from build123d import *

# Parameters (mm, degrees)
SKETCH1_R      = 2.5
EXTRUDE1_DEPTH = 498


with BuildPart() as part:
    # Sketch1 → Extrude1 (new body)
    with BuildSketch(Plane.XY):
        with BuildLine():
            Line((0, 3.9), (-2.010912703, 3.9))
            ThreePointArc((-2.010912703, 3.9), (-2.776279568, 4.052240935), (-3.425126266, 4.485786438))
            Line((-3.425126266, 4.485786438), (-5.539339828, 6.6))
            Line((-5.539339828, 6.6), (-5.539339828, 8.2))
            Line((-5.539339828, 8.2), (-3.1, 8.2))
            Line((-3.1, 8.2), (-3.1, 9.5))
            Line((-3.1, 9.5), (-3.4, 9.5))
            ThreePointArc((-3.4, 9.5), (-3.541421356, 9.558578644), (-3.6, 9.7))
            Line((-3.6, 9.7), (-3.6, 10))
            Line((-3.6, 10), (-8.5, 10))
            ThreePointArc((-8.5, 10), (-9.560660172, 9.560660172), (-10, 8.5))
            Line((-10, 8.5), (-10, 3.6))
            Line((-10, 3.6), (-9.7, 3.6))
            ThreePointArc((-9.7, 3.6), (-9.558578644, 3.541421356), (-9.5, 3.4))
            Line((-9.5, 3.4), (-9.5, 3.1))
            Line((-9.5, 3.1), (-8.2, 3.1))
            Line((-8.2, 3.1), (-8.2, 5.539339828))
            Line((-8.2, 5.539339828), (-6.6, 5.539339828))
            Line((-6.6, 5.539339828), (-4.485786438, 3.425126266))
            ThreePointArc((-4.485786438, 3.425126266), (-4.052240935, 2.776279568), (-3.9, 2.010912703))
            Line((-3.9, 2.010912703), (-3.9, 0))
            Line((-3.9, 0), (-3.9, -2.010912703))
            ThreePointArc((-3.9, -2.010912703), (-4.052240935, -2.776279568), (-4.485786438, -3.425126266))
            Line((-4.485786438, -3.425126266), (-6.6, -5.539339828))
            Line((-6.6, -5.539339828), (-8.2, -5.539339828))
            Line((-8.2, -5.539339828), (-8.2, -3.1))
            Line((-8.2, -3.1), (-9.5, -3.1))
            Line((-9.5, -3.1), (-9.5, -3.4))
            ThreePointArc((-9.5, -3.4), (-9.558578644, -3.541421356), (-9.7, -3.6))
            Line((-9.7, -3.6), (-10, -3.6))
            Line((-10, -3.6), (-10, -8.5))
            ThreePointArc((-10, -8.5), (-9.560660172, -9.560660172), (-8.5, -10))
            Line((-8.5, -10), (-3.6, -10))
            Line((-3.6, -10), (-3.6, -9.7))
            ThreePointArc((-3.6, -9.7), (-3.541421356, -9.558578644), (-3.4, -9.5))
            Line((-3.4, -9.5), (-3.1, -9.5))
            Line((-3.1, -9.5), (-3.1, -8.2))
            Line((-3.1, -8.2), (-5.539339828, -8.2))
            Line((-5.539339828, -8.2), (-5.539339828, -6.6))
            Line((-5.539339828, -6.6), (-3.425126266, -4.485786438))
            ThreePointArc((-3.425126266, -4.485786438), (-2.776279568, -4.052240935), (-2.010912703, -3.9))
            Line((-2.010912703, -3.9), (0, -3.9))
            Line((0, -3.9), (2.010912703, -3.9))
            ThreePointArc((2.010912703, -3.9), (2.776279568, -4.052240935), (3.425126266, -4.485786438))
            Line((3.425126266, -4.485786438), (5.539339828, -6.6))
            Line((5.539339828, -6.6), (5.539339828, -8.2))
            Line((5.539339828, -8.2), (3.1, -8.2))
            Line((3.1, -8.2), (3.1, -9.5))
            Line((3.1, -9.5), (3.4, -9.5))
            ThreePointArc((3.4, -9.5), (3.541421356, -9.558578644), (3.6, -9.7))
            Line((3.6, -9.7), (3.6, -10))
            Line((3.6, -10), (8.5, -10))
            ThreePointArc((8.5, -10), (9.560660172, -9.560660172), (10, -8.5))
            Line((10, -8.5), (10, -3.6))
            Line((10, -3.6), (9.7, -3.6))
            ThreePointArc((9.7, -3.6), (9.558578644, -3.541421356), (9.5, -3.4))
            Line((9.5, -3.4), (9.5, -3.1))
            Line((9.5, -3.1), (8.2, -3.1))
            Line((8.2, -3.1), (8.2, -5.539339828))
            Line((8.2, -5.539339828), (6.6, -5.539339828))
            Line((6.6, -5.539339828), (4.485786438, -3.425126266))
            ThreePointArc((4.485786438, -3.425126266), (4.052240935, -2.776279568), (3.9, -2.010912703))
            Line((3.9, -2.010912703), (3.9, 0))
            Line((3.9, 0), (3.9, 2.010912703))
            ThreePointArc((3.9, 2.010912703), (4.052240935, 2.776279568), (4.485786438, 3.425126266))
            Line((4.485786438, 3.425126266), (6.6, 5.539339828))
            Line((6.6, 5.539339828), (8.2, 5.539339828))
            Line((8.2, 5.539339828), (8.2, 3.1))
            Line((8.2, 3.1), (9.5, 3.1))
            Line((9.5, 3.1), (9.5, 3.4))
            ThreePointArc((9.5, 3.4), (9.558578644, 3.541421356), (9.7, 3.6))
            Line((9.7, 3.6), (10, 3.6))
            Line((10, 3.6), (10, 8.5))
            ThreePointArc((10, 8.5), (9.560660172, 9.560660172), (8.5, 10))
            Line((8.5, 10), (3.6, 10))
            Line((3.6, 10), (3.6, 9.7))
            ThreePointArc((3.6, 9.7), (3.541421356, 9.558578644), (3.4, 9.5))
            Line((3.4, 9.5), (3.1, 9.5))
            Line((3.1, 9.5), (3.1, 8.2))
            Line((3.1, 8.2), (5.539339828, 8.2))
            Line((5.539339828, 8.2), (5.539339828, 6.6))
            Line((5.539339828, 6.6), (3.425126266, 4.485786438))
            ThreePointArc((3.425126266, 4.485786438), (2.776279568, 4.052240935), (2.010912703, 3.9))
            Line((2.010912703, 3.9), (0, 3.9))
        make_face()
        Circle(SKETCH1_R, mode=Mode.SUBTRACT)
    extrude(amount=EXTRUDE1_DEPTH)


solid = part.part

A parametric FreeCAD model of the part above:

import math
import FreeCAD as App
import Part
import Sketcher
Q = App.Units.Quantity

doc = App.newDocument("Part")
body = doc.addObject("PartDesign::Body", "Body")

# Sketch on XY plane
sketch1 = doc.addObject("Sketcher::SketchObject", "Sketch")
body.addObject(sketch1)
sketch1.AttachmentSupport = (doc.XY_Plane, [""])
sketch1.MapMode = "FlatFace"
sketch1.addGeometry([
    Part.ArcOfCircle(Part.Circle(App.Vector(-2.01, 5.9, 0), App.Vector(0, 0, 1), 2), math.radians(-135), math.radians(-90)),  # 0
    Part.LineSegment(App.Vector(-3.43, 4.49, 0), App.Vector(-5.54, 6.6, 0)),  # 1
    Part.LineSegment(App.Vector(-5.54, 6.6, 0), App.Vector(-5.54, 8.2, 0)),  # 2
    Part.LineSegment(App.Vector(-5.54, 8.2, 0), App.Vector(-3.1, 8.2, 0)),  # 3
    Part.LineSegment(App.Vector(-3.1, 8.2, 0), App.Vector(-3.1, 9.5, 0)),  # 4
    Part.LineSegment(App.Vector(-3.1, 9.5, 0), App.Vector(-3.4, 9.5, 0)),  # 5
    Part.ArcOfCircle(Part.Circle(App.Vector(-3.4, 9.7, 0), App.Vector(0, 0, 1), 0.2), math.radians(-180), math.radians(-90)),  # 6
    Part.LineSegment(App.Vector(-3.6, 9.7, 0), App.Vector(-3.6, 10, 0)),  # 7
    Part.LineSegment(App.Vector(-3.6, 10, 0), App.Vector(-8.5, 10, 0)),  # 8
    Part.ArcOfCircle(Part.Circle(App.Vector(-8.5, 8.5, 0), App.Vector(0, 0, 1), 1.5), math.radians(90), math.radians(180)),  # 9
    Part.LineSegment(App.Vector(-10, 8.5, 0), App.Vector(-10, 3.6, 0)),  # 10
    Part.LineSegment(App.Vector(-10, 3.6, 0), App.Vector(-9.7, 3.6, 0)),  # 11
    Part.ArcOfCircle(Part.Circle(App.Vector(-9.7, 3.4, 0), App.Vector(0, 0, 1), 0.2), math.radians(0), math.radians(90)),  # 12
    Part.LineSegment(App.Vector(-9.5, 3.4, 0), App.Vector(-9.5, 3.1, 0)),  # 13
    Part.LineSegment(App.Vector(-9.5, 3.1, 0), App.Vector(-8.2, 3.1, 0)),  # 14
    Part.LineSegment(App.Vector(-8.2, 3.1, 0), App.Vector(-8.2, 5.54, 0)),  # 15
    Part.LineSegment(App.Vector(-8.2, 5.54, 0), App.Vector(-6.6, 5.54, 0)),  # 16
    Part.LineSegment(App.Vector(-6.6, 5.54, 0), App.Vector(-4.49, 3.43, 0)),  # 17
    Part.ArcOfCircle(Part.Circle(App.Vector(-5.9, 2.01, 0), App.Vector(0, 0, 1), 2), math.radians(0), math.radians(45)),  # 18
    Part.LineSegment(App.Vector(-3.9, 2.01, 0), App.Vector(-3.9, -2.01, 0)),  # 19
    Part.ArcOfCircle(Part.Circle(App.Vector(-5.9, -2.01, 0), App.Vector(0, 0, 1), 2), math.radians(-45), math.radians(0)),  # 20
    Part.LineSegment(App.Vector(-4.49, -3.43, 0), App.Vector(-6.6, -5.54, 0)),  # 21
    Part.LineSegment(App.Vector(-6.6, -5.54, 0), App.Vector(-8.2, -5.54, 0)),  # 22
    Part.LineSegment(App.Vector(-8.2, -5.54, 0), App.Vector(-8.2, -3.1, 0)),  # 23
    Part.LineSegment(App.Vector(-8.2, -3.1, 0), App.Vector(-9.5, -3.1, 0)),  # 24
    Part.LineSegment(App.Vector(-9.5, -3.1, 0), App.Vector(-9.5, -3.4, 0)),  # 25
    Part.ArcOfCircle(Part.Circle(App.Vector(-9.7, -3.4, 0), App.Vector(0, 0, 1), 0.2), math.radians(-90), math.radians(0)),  # 26
    Part.LineSegment(App.Vector(-9.7, -3.6, 0), App.Vector(-10, -3.6, 0)),  # 27
    Part.LineSegment(App.Vector(-10, -3.6, 0), App.Vector(-10, -8.5, 0)),  # 28
    Part.ArcOfCircle(Part.Circle(App.Vector(-8.5, -8.5, 0), App.Vector(0, 0, 1), 1.5), math.radians(180), math.radians(270)),  # 29
    Part.LineSegment(App.Vector(-8.5, -10, 0), App.Vector(-3.6, -10, 0)),  # 30
    Part.LineSegment(App.Vector(-3.6, -10, 0), App.Vector(-3.6, -9.7, 0)),  # 31
    Part.ArcOfCircle(Part.Circle(App.Vector(-3.4, -9.7, 0), App.Vector(0, 0, 1), 0.2), math.radians(90), math.radians(180)),  # 32
    Part.LineSegment(App.Vector(-3.4, -9.5, 0), App.Vector(-3.1, -9.5, 0)),  # 33
    Part.LineSegment(App.Vector(-3.1, -9.5, 0), App.Vector(-3.1, -8.2, 0)),  # 34
    Part.LineSegment(App.Vector(-3.1, -8.2, 0), App.Vector(-5.54, -8.2, 0)),  # 35
    Part.LineSegment(App.Vector(-5.54, -8.2, 0), App.Vector(-5.54, -6.6, 0)),  # 36
    Part.LineSegment(App.Vector(-5.54, -6.6, 0), App.Vector(-3.43, -4.49, 0)),  # 37
    Part.ArcOfCircle(Part.Circle(App.Vector(-2.01, -5.9, 0), App.Vector(0, 0, 1), 2), math.radians(90), math.radians(135)),  # 38
    Part.LineSegment(App.Vector(-2.01, -3.9, 0), App.Vector(2.01, -3.9, 0)),  # 39
    Part.ArcOfCircle(Part.Circle(App.Vector(2.01, -5.9, 0), App.Vector(0, 0, 1), 2), math.radians(45), math.radians(90)),  # 40
    Part.LineSegment(App.Vector(3.43, -4.49, 0), App.Vector(5.54, -6.6, 0)),  # 41
    Part.LineSegment(App.Vector(5.54, -6.6, 0), App.Vector(5.54, -8.2, 0)),  # 42
    Part.LineSegment(App.Vector(5.54, -8.2, 0), App.Vector(3.1, -8.2, 0)),  # 43
    Part.LineSegment(App.Vector(3.1, -8.2, 0), App.Vector(3.1, -9.5, 0)),  # 44
    Part.LineSegment(App.Vector(3.1, -9.5, 0), App.Vector(3.4, -9.5, 0)),  # 45
    Part.ArcOfCircle(Part.Circle(App.Vector(3.4, -9.7, 0), App.Vector(0, 0, 1), 0.2), math.radians(0), math.radians(90)),  # 46
    Part.LineSegment(App.Vector(3.6, -9.7, 0), App.Vector(3.6, -10, 0)),  # 47
    Part.LineSegment(App.Vector(3.6, -10, 0), App.Vector(8.5, -10, 0)),  # 48
    Part.ArcOfCircle(Part.Circle(App.Vector(8.5, -8.5, 0), App.Vector(0, 0, 1), 1.5), math.radians(-90), math.radians(0)),  # 49
    Part.LineSegment(App.Vector(10, -8.5, 0), App.Vector(10, -3.6, 0)),  # 50
    Part.LineSegment(App.Vector(10, -3.6, 0), App.Vector(9.7, -3.6, 0)),  # 51
    Part.ArcOfCircle(Part.Circle(App.Vector(9.7, -3.4, 0), App.Vector(0, 0, 1), 0.2), math.radians(-180), math.radians(-90)),  # 52
    Part.LineSegment(App.Vector(9.5, -3.4, 0), App.Vector(9.5, -3.1, 0)),  # 53
    Part.LineSegment(App.Vector(9.5, -3.1, 0), App.Vector(8.2, -3.1, 0)),  # 54
    Part.LineSegment(App.Vector(8.2, -3.1, 0), App.Vector(8.2, -5.54, 0)),  # 55
    Part.LineSegment(App.Vector(8.2, -5.54, 0), App.Vector(6.6, -5.54, 0)),  # 56
    Part.LineSegment(App.Vector(6.6, -5.54, 0), App.Vector(4.49, -3.43, 0)),  # 57
    Part.ArcOfCircle(Part.Circle(App.Vector(5.9, -2.01, 0), App.Vector(0, 0, 1), 2), math.radians(180), math.radians(225)),  # 58
    Part.LineSegment(App.Vector(3.9, -2.01, 0), App.Vector(3.9, 2.01, 0)),  # 59
    Part.ArcOfCircle(Part.Circle(App.Vector(5.9, 2.01, 0), App.Vector(0, 0, 1), 2), math.radians(135), math.radians(180)),  # 60
    Part.LineSegment(App.Vector(4.49, 3.43, 0), App.Vector(6.6, 5.54, 0)),  # 61
    Part.LineSegment(App.Vector(6.6, 5.54, 0), App.Vector(8.2, 5.54, 0)),  # 62
    Part.LineSegment(App.Vector(8.2, 5.54, 0), App.Vector(8.2, 3.1, 0)),  # 63
    Part.LineSegment(App.Vector(8.2, 3.1, 0), App.Vector(9.5, 3.1, 0)),  # 64
    Part.LineSegment(App.Vector(9.5, 3.1, 0), App.Vector(9.5, 3.4, 0)),  # 65
    Part.ArcOfCircle(Part.Circle(App.Vector(9.7, 3.4, 0), App.Vector(0, 0, 1), 0.2), math.radians(90), math.radians(180)),  # 66
    Part.LineSegment(App.Vector(9.7, 3.6, 0), App.Vector(10, 3.6, 0)),  # 67
    Part.LineSegment(App.Vector(10, 3.6, 0), App.Vector(10, 8.5, 0)),  # 68
    Part.ArcOfCircle(Part.Circle(App.Vector(8.5, 8.5, 0), App.Vector(0, 0, 1), 1.5), math.radians(0), math.radians(90)),  # 69
    Part.LineSegment(App.Vector(8.5, 10, 0), App.Vector(3.6, 10, 0)),  # 70
    Part.LineSegment(App.Vector(3.6, 10, 0), App.Vector(3.6, 9.7, 0)),  # 71
    Part.ArcOfCircle(Part.Circle(App.Vector(3.4, 9.7, 0), App.Vector(0, 0, 1), 0.2), math.radians(-90), math.radians(0)),  # 72
    Part.LineSegment(App.Vector(3.4, 9.5, 0), App.Vector(3.1, 9.5, 0)),  # 73
    Part.LineSegment(App.Vector(3.1, 9.5, 0), App.Vector(3.1, 8.2, 0)),  # 74
    Part.LineSegment(App.Vector(3.1, 8.2, 0), App.Vector(5.54, 8.2, 0)),  # 75
    Part.LineSegment(App.Vector(5.54, 8.2, 0), App.Vector(5.54, 6.6, 0)),  # 76
    Part.LineSegment(App.Vector(5.54, 6.6, 0), App.Vector(3.43, 4.49, 0)),  # 77
    Part.ArcOfCircle(Part.Circle(App.Vector(2.01, 5.9, 0), App.Vector(0, 0, 1), 2), math.radians(-90), math.radians(-45)),  # 78
    Part.LineSegment(App.Vector(2.01, 3.9, 0), App.Vector(-2.01, 3.9, 0)),  # 79
    Part.Circle(App.Vector(0, 0, 0), App.Vector(0, 0, 1), 2.5),  # 80
], False)
sketch1.addConstraint([
    Sketcher.Constraint("Tangent", 0, 1, 1, 1),
    Sketcher.Constraint("Coincident", 1, 2, 2, 1),
    Sketcher.Constraint("Coincident", 2, 2, 3, 1),
    Sketcher.Constraint("Coincident", 3, 2, 4, 1),
    Sketcher.Constraint("Coincident", 4, 2, 5, 1),
    Sketcher.Constraint("Tangent", 5, 2, 6, 2),
    Sketcher.Constraint("Tangent", 6, 1, 7, 1),
    Sketcher.Constraint("Coincident", 7, 2, 8, 1),
    Sketcher.Constraint("Tangent", 8, 2, 9, 1),
    Sketcher.Constraint("Tangent", 9, 2, 10, 1),
    Sketcher.Constraint("Coincident", 10, 2, 11, 1),
    Sketcher.Constraint("Tangent", 11, 2, 12, 2),
    Sketcher.Constraint("Tangent", 12, 1, 13, 1),
    Sketcher.Constraint("Coincident", 13, 2, 14, 1),
    Sketcher.Constraint("Coincident", 14, 2, 15, 1),
    Sketcher.Constraint("Coincident", 15, 2, 16, 1),
    Sketcher.Constraint("Coincident", 16, 2, 17, 1),
    Sketcher.Constraint("Tangent", 17, 2, 18, 2),
    Sketcher.Constraint("Tangent", 18, 1, 19, 1),
    Sketcher.Constraint("Tangent", 19, 2, 20, 2),
    Sketcher.Constraint("Tangent", 20, 1, 21, 1),
    Sketcher.Constraint("Coincident", 21, 2, 22, 1),
    Sketcher.Constraint("Coincident", 22, 2, 23, 1),
    Sketcher.Constraint("Coincident", 23, 2, 24, 1),
    Sketcher.Constraint("Coincident", 24, 2, 25, 1),
    Sketcher.Constraint("Tangent", 25, 2, 26, 2),
    Sketcher.Constraint("Tangent", 26, 1, 27, 1),
    Sketcher.Constraint("Coincident", 27, 2, 28, 1),
    Sketcher.Constraint("Tangent", 28, 2, 29, 1),
    Sketcher.Constraint("Tangent", 29, 2, 30, 1),
    Sketcher.Constraint("Coincident", 30, 2, 31, 1),
    Sketcher.Constraint("Tangent", 31, 2, 32, 2),
    Sketcher.Constraint("Tangent", 32, 1, 33, 1),
    Sketcher.Constraint("Coincident", 33, 2, 34, 1),
    Sketcher.Constraint("Coincident", 34, 2, 35, 1),
    Sketcher.Constraint("Coincident", 35, 2, 36, 1),
    Sketcher.Constraint("Coincident", 36, 2, 37, 1),
    Sketcher.Constraint("Tangent", 37, 2, 38, 2),
    Sketcher.Constraint("Tangent", 38, 1, 39, 1),
    Sketcher.Constraint("Tangent", 39, 2, 40, 2),
    Sketcher.Constraint("Tangent", 40, 1, 41, 1),
    Sketcher.Constraint("Coincident", 41, 2, 42, 1),
    Sketcher.Constraint("Coincident", 42, 2, 43, 1),
    Sketcher.Constraint("Coincident", 43, 2, 44, 1),
    Sketcher.Constraint("Coincident", 44, 2, 45, 1),
    Sketcher.Constraint("Tangent", 45, 2, 46, 2),
    Sketcher.Constraint("Tangent", 46, 1, 47, 1),
    Sketcher.Constraint("Coincident", 47, 2, 48, 1),
    Sketcher.Constraint("Tangent", 48, 2, 49, 1),
    Sketcher.Constraint("Tangent", 49, 2, 50, 1),
    Sketcher.Constraint("Coincident", 50, 2, 51, 1),
    Sketcher.Constraint("Tangent", 51, 2, 52, 2),
    Sketcher.Constraint("Tangent", 52, 1, 53, 1),
    Sketcher.Constraint("Coincident", 53, 2, 54, 1),
    Sketcher.Constraint("Coincident", 54, 2, 55, 1),
    Sketcher.Constraint("Coincident", 55, 2, 56, 1),
    Sketcher.Constraint("Coincident", 56, 2, 57, 1),
    Sketcher.Constraint("Tangent", 57, 2, 58, 2),
    Sketcher.Constraint("Tangent", 58, 1, 59, 1),
    Sketcher.Constraint("Tangent", 59, 2, 60, 2),
    Sketcher.Constraint("Tangent", 60, 1, 61, 1),
    Sketcher.Constraint("Coincident", 61, 2, 62, 1),
    Sketcher.Constraint("Coincident", 62, 2, 63, 1),
    Sketcher.Constraint("Coincident", 63, 2, 64, 1),
    Sketcher.Constraint("Coincident", 64, 2, 65, 1),
    Sketcher.Constraint("Tangent", 65, 2, 66, 2),
    Sketcher.Constraint("Tangent", 66, 1, 67, 1),
    Sketcher.Constraint("Coincident", 67, 2, 68, 1),
    Sketcher.Constraint("Tangent", 68, 2, 69, 1),
    Sketcher.Constraint("Tangent", 69, 2, 70, 1),
    Sketcher.Constraint("Coincident", 70, 2, 71, 1),
    Sketcher.Constraint("Tangent", 71, 2, 72, 2),
    Sketcher.Constraint("Tangent", 72, 1, 73, 1),
    Sketcher.Constraint("Coincident", 73, 2, 74, 1),
    Sketcher.Constraint("Coincident", 74, 2, 75, 1),
    Sketcher.Constraint("Coincident", 75, 2, 76, 1),
    Sketcher.Constraint("Coincident", 76, 2, 77, 1),
    Sketcher.Constraint("Tangent", 77, 2, 78, 2),
    Sketcher.Constraint("Tangent", 78, 1, 79, 1),
    Sketcher.Constraint("Tangent", 79, 2, 0, 2),
    Sketcher.Constraint("Vertical", 2),
    Sketcher.Constraint("Horizontal", 3),
    Sketcher.Constraint("Vertical", 4),
    Sketcher.Constraint("Horizontal", 5),
    Sketcher.Constraint("Vertical", 7),
    Sketcher.Constraint("Horizontal", 8),
    Sketcher.Constraint("Vertical", 10),
    Sketcher.Constraint("Horizontal", 11),
    Sketcher.Constraint("Vertical", 13),
    Sketcher.Constraint("Horizontal", 14),
    Sketcher.Constraint("Vertical", 15),
    Sketcher.Constraint("Horizontal", 16),
    Sketcher.Constraint("Vertical", 19),
    Sketcher.Constraint("Horizontal", 22),
    Sketcher.Constraint("Vertical", 23),
    Sketcher.Constraint("Horizontal", 24),
    Sketcher.Constraint("Vertical", 25),
    Sketcher.Constraint("Horizontal", 27),
    Sketcher.Constraint("Vertical", 28),
    Sketcher.Constraint("Horizontal", 30),
    Sketcher.Constraint("Vertical", 31),
    Sketcher.Constraint("Horizontal", 33),
    Sketcher.Constraint("Vertical", 34),
    Sketcher.Constraint("Horizontal", 35),
    Sketcher.Constraint("Vertical", 36),
    Sketcher.Constraint("Horizontal", 39),
    Sketcher.Constraint("Vertical", 42),
    Sketcher.Constraint("Horizontal", 43),
    Sketcher.Constraint("Vertical", 44),
    Sketcher.Constraint("Horizontal", 45),
    Sketcher.Constraint("Vertical", 47),
    Sketcher.Constraint("Horizontal", 48),
    Sketcher.Constraint("Vertical", 50),
    Sketcher.Constraint("Horizontal", 51),
    Sketcher.Constraint("Vertical", 53),
    Sketcher.Constraint("Horizontal", 54),
    Sketcher.Constraint("Vertical", 55),
    Sketcher.Constraint("Horizontal", 56),
    Sketcher.Constraint("Vertical", 59),
    Sketcher.Constraint("Horizontal", 62),
    Sketcher.Constraint("Vertical", 63),
    Sketcher.Constraint("Horizontal", 64),
    Sketcher.Constraint("Vertical", 65),
    Sketcher.Constraint("Horizontal", 67),
    Sketcher.Constraint("Vertical", 68),
    Sketcher.Constraint("Horizontal", 70),
    Sketcher.Constraint("Vertical", 71),
    Sketcher.Constraint("Horizontal", 73),
    Sketcher.Constraint("Vertical", 74),
    Sketcher.Constraint("Horizontal", 75),
    Sketcher.Constraint("Vertical", 76),
    Sketcher.Constraint("Horizontal", 79),
    Sketcher.Constraint("Coincident", 80, 3, -1, 1),
    Sketcher.Constraint("Equal", 6, 12),
    Sketcher.Constraint("Equal", 0, 18),
    Sketcher.Constraint("Equal", 18, 20),
    Sketcher.Constraint("Equal", 12, 26),
    Sketcher.Constraint("Equal", 9, 29),
    Sketcher.Constraint("Equal", 26, 32),
    Sketcher.Constraint("Equal", 20, 38),
    Sketcher.Constraint("Equal", 38, 40),
    Sketcher.Constraint("Equal", 32, 46),
    Sketcher.Constraint("Equal", 29, 49),
    Sketcher.Constraint("Equal", 46, 52),
    Sketcher.Constraint("Equal", 40, 58),
    Sketcher.Constraint("Equal", 58, 60),
    Sketcher.Constraint("Equal", 52, 66),
    Sketcher.Constraint("Equal", 49, 69),
    Sketcher.Constraint("Equal", 66, 72),
    Sketcher.Constraint("Equal", 60, 78),
    Sketcher.Constraint("Symmetric", 0, 3, 40, 3, -1, 1),
    Sketcher.Constraint("Symmetric", 6, 3, 46, 3, -1, 1),
    Sketcher.Constraint("Symmetric", 9, 3, 49, 3, -1, 1),
    Sketcher.Constraint("Symmetric", 12, 3, 52, 3, -1, 1),
    Sketcher.Constraint("Symmetric", 18, 3, 58, 3, -1, 1),
    Sketcher.Constraint("Symmetric", 26, 3, 66, 3, -1, 1),
    Sketcher.Constraint("Symmetric", 29, 3, 69, 3, -1, 1),
    Sketcher.Constraint("Symmetric", 32, 3, 72, 3, -1, 1),
    Sketcher.Constraint("Symmetric", 1, 2, 41, 2, -1, 1),
    Sketcher.Constraint("Symmetric", 3, 2, 43, 2, -1, 1),
    Sketcher.Constraint("Symmetric", 14, 2, 54, 2, -1, 1),
    Sketcher.Constraint("Symmetric", 16, 2, 56, 2, -1, 1),
    Sketcher.Constraint("Symmetric", 20, 1, 60, 1, -1, 1),
    Sketcher.Constraint("Symmetric", 22, 2, 62, 2, -1, 1),
    Sketcher.Constraint("Symmetric", 34, 2, 74, 2, -1, 1),
    Sketcher.Constraint("Symmetric", 36, 2, 76, 2, -1, 1),
    Sketcher.Constraint("Symmetric", 32, 3, 46, 3, -2),
    Sketcher.Constraint("Symmetric", 29, 3, 49, 3, -2),
    Sketcher.Constraint("Symmetric", 26, 3, 52, 3, -2),
    Sketcher.Constraint("Symmetric", 37, 2, 40, 1, -2),
    Sketcher.Constraint("Symmetric", 35, 2, 42, 2, -2),
    Sketcher.Constraint("Symmetric", 23, 2, 54, 2, -2),
    Sketcher.Constraint("Symmetric", 21, 2, 56, 2, -2),
    Sketcher.Constraint("Parallel", 1, 17),
    Sketcher.Constraint("Perpendicular", 17, 21),
    Sketcher.Constraint("Parallel", 21, 37),
    Sketcher.Constraint("Parallel", 61, 77),
    Sketcher.Constraint("Horizontal", 14, 2, 63, 2),
    Sketcher.Constraint("Vertical", 4, 2, 33, 2),
    Sketcher.Constraint("Equal", 5, 11),
    Sketcher.Constraint("Equal", 62, 2),
    Sketcher.Constraint("Equal", 64, 4),
    Sketcher.Constraint("Equal", 73, 7),
    Sketcher.Constraint("Equal", 70, 10),
    Sketcher.Constraint("Equal", 7, 13),
    Sketcher.Constraint("Equal", 75, 15),
    Sketcher.Constraint("Equal", 79, 19),
    Sketcher.Constraint("Equal", 1, 17),
    Sketcher.Constraint("Diameter", 80, Q("5 mm")),
    Sketcher.Constraint("Radius", 0, Q("2 mm")),
    Sketcher.Constraint("Radius", 6, Q("0.2 mm")),
    Sketcher.Constraint("Radius", 9, Q("1.5 mm")),
    Sketcher.Constraint("DistanceX", 5, 2, 5, 1, Q("0.3 mm")),
    Sketcher.Constraint("DistanceX", 8, 2, 8, 1, Q("4.9 mm")),
    Sketcher.Constraint("DistanceX", 14, 1, 14, 2, Q("1.3 mm")),
    Sketcher.Constraint("DistanceX", 16, 1, 16, 2, Q("1.6 mm")),
    Sketcher.Constraint("DistanceY", -1, 1, 7, 2, Q("10 mm")),
    Sketcher.Constraint("DistanceY", -1, 1, 0, 3, Q("5.9 mm")),
    Sketcher.Constraint("DistanceX", 3, 1, 3, 2, Q("2.43934 mm")),
])
pad1 = doc.addObject("PartDesign::Pad", "Pad")
body.addObject(pad1)
pad1.Profile = sketch1
pad1.Length = 498

doc.recompute()
